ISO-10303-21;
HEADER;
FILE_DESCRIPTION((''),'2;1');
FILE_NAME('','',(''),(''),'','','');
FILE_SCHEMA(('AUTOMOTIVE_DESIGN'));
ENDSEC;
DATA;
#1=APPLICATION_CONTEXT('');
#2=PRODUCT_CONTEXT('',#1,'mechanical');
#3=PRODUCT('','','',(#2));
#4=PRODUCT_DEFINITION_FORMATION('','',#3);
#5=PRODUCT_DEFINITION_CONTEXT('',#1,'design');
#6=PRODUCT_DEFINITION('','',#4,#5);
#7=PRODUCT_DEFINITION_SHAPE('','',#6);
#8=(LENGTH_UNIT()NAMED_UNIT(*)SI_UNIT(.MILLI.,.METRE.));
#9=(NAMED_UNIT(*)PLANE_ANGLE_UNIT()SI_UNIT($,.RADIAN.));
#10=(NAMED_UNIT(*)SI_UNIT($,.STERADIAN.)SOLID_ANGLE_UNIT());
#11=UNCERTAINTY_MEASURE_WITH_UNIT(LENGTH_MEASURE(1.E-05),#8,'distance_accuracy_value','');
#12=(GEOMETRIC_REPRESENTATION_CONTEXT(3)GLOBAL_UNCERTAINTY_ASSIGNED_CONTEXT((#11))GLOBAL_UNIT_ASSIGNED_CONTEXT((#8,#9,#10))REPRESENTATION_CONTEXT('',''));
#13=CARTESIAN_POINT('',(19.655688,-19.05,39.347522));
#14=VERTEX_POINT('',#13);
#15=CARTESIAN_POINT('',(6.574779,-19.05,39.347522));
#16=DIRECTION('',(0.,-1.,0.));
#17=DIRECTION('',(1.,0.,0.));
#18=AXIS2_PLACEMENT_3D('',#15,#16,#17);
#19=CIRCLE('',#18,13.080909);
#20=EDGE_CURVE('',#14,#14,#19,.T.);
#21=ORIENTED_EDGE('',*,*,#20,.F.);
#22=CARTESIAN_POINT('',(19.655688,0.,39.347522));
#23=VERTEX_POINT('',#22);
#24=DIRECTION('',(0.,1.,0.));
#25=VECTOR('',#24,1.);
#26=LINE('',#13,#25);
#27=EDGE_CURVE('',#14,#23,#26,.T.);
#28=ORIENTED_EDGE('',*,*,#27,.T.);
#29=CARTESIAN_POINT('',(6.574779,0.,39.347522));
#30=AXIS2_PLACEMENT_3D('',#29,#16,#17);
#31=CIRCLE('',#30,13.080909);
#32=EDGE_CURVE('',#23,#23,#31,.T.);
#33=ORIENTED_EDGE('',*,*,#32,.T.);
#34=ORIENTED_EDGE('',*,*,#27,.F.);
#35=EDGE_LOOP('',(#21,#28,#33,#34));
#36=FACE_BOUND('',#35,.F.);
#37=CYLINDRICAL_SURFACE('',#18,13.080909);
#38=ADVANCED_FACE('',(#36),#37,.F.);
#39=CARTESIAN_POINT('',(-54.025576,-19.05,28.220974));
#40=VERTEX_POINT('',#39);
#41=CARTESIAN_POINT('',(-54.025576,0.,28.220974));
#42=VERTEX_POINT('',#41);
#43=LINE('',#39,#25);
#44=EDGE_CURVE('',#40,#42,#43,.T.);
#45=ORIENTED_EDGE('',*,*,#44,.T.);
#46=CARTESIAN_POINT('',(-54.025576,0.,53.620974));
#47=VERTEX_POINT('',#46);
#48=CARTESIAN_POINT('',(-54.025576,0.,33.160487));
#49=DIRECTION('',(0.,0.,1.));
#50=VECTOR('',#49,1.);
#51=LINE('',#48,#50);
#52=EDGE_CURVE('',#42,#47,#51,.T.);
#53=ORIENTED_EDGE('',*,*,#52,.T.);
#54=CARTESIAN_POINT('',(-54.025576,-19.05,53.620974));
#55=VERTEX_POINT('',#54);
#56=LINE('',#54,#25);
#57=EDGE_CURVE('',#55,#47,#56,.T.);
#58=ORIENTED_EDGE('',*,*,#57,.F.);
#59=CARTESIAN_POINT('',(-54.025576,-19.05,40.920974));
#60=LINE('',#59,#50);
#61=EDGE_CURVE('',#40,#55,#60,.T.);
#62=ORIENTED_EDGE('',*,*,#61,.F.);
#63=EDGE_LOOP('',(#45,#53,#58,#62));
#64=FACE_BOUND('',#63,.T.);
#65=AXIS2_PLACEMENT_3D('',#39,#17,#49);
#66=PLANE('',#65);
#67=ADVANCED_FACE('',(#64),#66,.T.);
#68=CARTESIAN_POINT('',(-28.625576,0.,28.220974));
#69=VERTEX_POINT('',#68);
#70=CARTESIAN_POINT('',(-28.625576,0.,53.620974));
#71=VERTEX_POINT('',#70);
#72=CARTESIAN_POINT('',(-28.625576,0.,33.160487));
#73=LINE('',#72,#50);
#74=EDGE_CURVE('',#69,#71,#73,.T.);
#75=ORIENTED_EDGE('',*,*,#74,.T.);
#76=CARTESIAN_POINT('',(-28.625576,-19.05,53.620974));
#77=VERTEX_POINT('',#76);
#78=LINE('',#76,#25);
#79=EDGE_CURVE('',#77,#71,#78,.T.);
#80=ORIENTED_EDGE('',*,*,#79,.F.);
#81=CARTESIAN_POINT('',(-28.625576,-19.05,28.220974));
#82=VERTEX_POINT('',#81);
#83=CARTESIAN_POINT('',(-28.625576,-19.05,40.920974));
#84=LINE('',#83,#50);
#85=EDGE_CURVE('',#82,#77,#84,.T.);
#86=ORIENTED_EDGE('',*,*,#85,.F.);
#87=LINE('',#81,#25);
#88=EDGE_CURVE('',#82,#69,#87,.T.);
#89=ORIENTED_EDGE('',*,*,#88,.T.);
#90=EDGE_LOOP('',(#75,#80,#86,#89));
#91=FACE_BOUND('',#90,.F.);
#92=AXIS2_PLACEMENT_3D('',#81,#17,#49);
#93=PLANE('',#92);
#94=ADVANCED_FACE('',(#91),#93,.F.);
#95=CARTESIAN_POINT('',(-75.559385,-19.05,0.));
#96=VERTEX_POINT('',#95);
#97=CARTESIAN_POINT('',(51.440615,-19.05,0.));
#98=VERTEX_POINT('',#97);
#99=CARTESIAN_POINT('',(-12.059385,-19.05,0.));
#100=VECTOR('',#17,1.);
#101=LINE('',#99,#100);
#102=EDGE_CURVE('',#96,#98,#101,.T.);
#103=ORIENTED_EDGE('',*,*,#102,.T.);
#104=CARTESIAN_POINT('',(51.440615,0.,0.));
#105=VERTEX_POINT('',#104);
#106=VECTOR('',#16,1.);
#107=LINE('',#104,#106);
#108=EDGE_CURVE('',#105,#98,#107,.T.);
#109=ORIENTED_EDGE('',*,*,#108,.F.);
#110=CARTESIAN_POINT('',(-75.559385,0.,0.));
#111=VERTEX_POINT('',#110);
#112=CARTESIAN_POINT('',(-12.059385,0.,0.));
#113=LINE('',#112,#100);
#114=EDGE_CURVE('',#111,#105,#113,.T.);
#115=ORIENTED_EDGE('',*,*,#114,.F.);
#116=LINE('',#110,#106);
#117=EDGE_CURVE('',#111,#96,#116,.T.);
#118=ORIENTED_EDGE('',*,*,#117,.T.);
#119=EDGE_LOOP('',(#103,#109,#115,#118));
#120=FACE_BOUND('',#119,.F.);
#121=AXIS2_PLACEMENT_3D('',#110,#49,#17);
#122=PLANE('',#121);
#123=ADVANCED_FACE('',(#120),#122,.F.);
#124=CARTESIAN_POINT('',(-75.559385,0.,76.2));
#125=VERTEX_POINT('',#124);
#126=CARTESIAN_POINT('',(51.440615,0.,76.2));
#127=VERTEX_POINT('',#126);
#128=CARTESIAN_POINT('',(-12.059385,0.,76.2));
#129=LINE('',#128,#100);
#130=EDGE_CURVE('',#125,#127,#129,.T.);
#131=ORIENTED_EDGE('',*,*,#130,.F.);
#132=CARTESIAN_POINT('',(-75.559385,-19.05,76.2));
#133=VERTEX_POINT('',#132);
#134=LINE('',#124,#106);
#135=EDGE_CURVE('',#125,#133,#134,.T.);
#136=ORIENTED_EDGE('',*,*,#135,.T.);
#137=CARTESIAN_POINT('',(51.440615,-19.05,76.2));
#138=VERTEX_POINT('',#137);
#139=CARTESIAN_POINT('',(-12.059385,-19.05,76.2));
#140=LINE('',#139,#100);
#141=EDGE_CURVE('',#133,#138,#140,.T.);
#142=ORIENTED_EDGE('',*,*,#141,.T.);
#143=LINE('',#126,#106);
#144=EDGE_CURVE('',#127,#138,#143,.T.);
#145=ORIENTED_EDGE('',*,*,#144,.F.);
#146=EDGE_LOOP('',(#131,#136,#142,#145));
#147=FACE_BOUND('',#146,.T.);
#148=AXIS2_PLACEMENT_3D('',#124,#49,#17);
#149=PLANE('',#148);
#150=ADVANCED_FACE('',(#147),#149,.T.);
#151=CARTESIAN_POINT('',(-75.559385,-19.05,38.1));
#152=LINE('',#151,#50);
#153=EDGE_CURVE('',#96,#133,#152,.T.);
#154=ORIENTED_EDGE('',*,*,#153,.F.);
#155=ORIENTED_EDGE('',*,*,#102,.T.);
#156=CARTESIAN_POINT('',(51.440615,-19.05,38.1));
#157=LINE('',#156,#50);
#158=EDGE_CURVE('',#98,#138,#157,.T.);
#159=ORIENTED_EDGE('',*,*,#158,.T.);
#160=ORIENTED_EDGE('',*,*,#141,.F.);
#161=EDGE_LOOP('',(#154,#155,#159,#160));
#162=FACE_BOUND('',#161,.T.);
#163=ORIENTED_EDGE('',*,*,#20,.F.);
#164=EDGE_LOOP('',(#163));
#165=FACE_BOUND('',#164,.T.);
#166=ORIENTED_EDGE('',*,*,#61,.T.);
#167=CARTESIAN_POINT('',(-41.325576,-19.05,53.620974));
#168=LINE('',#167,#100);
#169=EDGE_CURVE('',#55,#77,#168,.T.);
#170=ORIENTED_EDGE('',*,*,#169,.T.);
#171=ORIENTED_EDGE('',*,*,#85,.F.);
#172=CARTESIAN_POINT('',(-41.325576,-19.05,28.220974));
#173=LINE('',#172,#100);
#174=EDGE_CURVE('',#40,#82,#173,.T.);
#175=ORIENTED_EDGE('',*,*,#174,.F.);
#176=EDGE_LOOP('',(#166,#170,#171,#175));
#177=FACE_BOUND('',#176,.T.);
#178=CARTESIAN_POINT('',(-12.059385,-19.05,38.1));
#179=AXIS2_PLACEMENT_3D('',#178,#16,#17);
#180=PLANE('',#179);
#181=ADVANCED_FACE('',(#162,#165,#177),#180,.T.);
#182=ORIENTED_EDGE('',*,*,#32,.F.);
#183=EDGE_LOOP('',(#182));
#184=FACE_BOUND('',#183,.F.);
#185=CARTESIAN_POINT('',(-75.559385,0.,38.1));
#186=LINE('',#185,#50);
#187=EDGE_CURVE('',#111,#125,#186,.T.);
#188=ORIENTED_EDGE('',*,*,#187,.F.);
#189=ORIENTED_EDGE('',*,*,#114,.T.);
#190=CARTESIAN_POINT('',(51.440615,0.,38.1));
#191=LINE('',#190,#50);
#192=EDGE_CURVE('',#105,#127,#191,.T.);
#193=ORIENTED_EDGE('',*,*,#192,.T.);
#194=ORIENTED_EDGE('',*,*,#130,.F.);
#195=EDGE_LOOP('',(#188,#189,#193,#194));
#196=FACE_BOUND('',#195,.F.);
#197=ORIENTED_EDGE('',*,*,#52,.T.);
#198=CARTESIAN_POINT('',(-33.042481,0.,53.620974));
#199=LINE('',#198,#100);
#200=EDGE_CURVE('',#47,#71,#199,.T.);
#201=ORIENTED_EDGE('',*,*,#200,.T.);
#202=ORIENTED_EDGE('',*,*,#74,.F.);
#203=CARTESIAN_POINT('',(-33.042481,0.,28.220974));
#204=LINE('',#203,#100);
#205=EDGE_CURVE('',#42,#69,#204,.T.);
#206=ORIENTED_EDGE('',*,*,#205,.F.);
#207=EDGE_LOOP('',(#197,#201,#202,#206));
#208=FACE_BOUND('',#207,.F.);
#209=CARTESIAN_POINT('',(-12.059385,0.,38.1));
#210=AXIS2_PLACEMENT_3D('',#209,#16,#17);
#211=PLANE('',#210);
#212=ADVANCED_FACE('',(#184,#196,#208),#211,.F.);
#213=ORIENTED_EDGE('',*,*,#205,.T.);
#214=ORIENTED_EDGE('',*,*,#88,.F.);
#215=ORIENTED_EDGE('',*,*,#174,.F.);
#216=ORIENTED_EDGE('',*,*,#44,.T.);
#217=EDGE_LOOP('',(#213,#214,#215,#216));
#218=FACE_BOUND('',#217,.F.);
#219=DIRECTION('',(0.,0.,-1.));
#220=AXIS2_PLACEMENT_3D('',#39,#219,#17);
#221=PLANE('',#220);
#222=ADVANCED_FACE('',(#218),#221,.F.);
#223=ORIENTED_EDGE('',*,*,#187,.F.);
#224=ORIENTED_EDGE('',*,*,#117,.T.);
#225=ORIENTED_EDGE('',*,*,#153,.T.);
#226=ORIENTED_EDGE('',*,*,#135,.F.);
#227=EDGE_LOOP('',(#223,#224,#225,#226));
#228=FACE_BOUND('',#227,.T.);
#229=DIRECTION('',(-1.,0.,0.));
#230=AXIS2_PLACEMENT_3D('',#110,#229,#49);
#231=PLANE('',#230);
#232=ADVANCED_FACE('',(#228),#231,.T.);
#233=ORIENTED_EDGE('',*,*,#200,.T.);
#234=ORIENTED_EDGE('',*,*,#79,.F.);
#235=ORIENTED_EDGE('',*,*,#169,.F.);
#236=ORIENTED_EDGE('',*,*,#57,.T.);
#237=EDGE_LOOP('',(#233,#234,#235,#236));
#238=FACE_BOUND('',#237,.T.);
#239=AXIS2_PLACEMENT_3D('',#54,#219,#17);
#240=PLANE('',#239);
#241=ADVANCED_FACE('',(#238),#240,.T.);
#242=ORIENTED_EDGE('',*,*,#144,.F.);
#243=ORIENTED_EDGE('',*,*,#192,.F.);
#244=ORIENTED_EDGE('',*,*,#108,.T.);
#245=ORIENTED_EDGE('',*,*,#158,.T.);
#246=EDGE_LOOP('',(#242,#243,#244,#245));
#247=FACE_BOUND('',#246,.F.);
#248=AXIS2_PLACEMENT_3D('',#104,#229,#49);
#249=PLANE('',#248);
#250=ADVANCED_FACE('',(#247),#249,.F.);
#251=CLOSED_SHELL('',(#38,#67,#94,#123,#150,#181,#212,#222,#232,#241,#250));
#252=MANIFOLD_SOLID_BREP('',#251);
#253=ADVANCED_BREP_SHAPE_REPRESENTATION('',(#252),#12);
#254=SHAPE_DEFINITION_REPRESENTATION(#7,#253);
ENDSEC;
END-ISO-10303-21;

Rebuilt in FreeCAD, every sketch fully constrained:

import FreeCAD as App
import Part
import Sketcher

V = App.Vector
Q = App.Units.Quantity


def add_polygon(sketch, points):
    """Adds a closed chain of lines whose ends are joined by coincident constraints."""
    first, n = sketch.GeometryCount, len(points)
    for a, b in zip(points, points[1:] + points[:1]):
        sketch.addGeometry(Part.LineSegment(App.Vector(*a, 0), App.Vector(*b, 0)), False)
    for i in range(n):
        sketch.addConstraint(Sketcher.Constraint("Coincident", first + i, 2, first + (i + 1) % n, 1))

doc = App.newDocument("Part")
body = doc.addObject("PartDesign::Body", "Body")

# Sketch on XZ plane
sketch1 = body.newObject("Sketcher::SketchObject", "Sketch")
sketch1.AttachmentSupport = (doc.getObject("XZ_Plane"), [""])
sketch1.MapMode = "FlatFace"
add_polygon(sketch1, [(-76, 76), (-76, 0), (51, 0), (51, 76)])  # lines 0-3
sketch1.addConstraint(Sketcher.Constraint("Vertical", 0))
sketch1.addConstraint(Sketcher.Constraint("Horizontal", 1))
sketch1.addConstraint(Sketcher.Constraint("Vertical", 2))
sketch1.addConstraint(Sketcher.Constraint("Horizontal", 3))
sketch1.addConstraint(Sketcher.Constraint("PointOnObject", 0, 2, -1))
sketch1.addConstraint(Sketcher.Constraint("DistanceX", 1, 1, 1, 2, Q("5 in")))
sketch1.addConstraint(Sketcher.Constraint("DistanceY", 0, 2, 0, 1, Q("3 in")))
sketch1.addConstraint(Sketcher.Constraint("DistanceX", 0, 2, -1, 1, 75.559385))
pad1 = body.newObject("PartDesign::Pad", "Pad")
pad1.Profile = sketch1
pad1.Length = Q("0.75 in")

# Sketch on XZ plane
sketch2 = body.newObject("Sketcher::SketchObject", "Sketch001")
sketch2.AttachmentSupport = (doc.getObject("XZ_Plane"), [""])
sketch2.MapMode = "FlatFace"
sketch2.AttachmentOffset = App.Placement(V(0, 0, 0.75 * 25.4), App.Rotation())
sketch2.addGeometry(Part.Circle(V(7, 39, 0), V(0, 0, 1), 13), False)  # 0
add_polygon(sketch2, [(-54, 54), (-54, 28), (-29, 28), (-29, 54)])  # lines 1-4
sketch2.addConstraint(Sketcher.Constraint("Vertical", 1))
sketch2.addConstraint(Sketcher.Constraint("Horizontal", 2))
sketch2.addConstraint(Sketcher.Constraint("Vertical", 3))
sketch2.addConstraint(Sketcher.Constraint("Horizontal", 4))
sketch2.addConstraint(Sketcher.Constraint("Equal", 4, 1))
sketch2.addConstraint(Sketcher.Constraint("DistanceX", 2, 1, 2, 2, Q("1 in")))
sketch2.addConstraint(Sketcher.Constraint("Diameter", 0, 26.161818))
sketch2.addConstraint(Sketcher.Constraint("DistanceX", -1, 1, 0, 3, 6.574779))
sketch2.addConstraint(Sketcher.Constraint("DistanceY", -1, 1, 0, 3, 39.347522))
sketch2.addConstraint(Sketcher.Constraint("DistanceY", 0, 3, 3, 2, 14.273452))
sketch2.addConstraint(Sketcher.Constraint("DistanceX", 1, 2, -1, 1, 54.025576))
pocket1 = body.newObject("PartDesign::Pocket", "Pocket")
pocket1.Profile = sketch2
pocket1.Length = Q("100 in")

doc.recompute()
